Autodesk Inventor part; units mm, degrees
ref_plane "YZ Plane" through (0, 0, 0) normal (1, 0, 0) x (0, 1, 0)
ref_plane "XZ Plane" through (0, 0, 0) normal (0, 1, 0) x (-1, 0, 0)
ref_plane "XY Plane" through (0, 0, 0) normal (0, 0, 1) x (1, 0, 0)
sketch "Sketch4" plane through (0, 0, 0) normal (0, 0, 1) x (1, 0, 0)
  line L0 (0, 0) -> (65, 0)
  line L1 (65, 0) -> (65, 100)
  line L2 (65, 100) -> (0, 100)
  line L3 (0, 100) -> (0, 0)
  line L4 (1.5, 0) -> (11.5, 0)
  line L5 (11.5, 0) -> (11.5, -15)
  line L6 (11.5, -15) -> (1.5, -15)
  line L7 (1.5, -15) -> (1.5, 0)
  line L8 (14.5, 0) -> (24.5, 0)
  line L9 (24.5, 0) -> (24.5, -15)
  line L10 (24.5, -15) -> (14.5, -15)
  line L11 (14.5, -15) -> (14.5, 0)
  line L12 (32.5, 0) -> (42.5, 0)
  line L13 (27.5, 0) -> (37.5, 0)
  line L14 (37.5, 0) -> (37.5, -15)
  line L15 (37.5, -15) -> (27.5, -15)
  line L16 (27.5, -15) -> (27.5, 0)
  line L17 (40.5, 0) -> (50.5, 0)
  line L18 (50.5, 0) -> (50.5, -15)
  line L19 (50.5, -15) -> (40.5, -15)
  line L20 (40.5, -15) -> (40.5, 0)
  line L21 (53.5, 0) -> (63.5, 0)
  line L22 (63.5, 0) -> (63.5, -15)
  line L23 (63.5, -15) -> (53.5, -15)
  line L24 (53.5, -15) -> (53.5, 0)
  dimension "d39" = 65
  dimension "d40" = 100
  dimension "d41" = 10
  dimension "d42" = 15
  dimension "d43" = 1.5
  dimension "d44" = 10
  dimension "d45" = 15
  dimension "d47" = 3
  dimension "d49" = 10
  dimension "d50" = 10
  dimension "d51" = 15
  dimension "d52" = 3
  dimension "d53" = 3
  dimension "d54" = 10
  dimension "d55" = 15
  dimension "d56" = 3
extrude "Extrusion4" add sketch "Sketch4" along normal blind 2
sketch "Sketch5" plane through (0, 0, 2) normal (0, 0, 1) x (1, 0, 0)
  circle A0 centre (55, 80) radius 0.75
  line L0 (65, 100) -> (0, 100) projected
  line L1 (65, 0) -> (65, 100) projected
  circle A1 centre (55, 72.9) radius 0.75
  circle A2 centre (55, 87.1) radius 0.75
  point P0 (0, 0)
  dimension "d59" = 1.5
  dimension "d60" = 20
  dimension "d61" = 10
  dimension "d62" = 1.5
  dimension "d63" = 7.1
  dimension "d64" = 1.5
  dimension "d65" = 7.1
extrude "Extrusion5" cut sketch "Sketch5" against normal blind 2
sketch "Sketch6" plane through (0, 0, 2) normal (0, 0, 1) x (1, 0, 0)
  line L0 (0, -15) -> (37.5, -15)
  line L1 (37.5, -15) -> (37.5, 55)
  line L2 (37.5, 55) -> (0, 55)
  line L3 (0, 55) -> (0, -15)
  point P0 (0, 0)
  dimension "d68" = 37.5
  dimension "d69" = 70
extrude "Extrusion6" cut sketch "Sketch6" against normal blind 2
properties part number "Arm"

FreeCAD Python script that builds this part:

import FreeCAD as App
import Part
import Sketcher
from FreeCAD import Vector
Q = App.Units.Quantity

doc = App.newDocument("Part")
params = doc.addObject("Spreadsheet::Sheet", "Params")
for row, (alias, value) in enumerate([
    ("sketch1_width", "10 mm"),
    ("sketch1_width2", "3 mm"),
    ("sketch1_width3", "65 mm"),
    ("sketch1_height", "100 mm"),
    ("sketch1_height2", "15 mm"),
    ("pad1_length", "2 mm"),
    ("sketch2_diameter", "1.5 mm"),
    ("pocket1_length", "2 mm"),
    ("sketch3_height", "70 mm"),
    ("sketch3_width", "37.5 mm"),
    ("pocket2_length", "2 mm"),
], start=1):
    params.set(f"A{row}", alias)
    params.set(f"B{row}", "=" + value)
    params.setAlias(f"B{row}", alias)

body = doc.addObject("PartDesign::Body", "Body")

# Sketch on XY plane
sketch1 = doc.addObject("Sketcher::SketchObject", "Sketch")
body.addObject(sketch1)
sketch1.AttachmentSupport = (doc.XY_Plane, [""])
sketch1.MapMode = "FlatFace"
sketch1.addGeometry(Part.LineSegment(Vector(0, 100, 0), Vector(0, 0, 0)), False)
sketch1.addGeometry(Part.LineSegment(Vector(0, 0, 0), Vector(1.5, 0, 0)), False)
sketch1.addGeometry(Part.LineSegment(Vector(1.5, 0, 0), Vector(1.5, -15, 0)), False)
sketch1.addGeometry(Part.LineSegment(Vector(1.5, -15, 0), Vector(11.5, -15, 0)), False)
sketch1.addGeometry(Part.LineSegment(Vector(11.5, -15, 0), Vector(11.5, 0, 0)), False)
sketch1.addGeometry(Part.LineSegment(Vector(11.5, 0, 0), Vector(14.5, 0, 0)), False)
sketch1.addGeometry(Part.LineSegment(Vector(14.5, 0, 0), Vector(14.5, -15, 0)), False)
sketch1.addGeometry(Part.LineSegment(Vector(14.5, -15, 0), Vector(24.5, -15, 0)), False)
sketch1.addGeometry(Part.LineSegment(Vector(24.5, -15, 0), Vector(24.5, 0, 0)), False)
sketch1.addGeometry(Part.LineSegment(Vector(24.5, 0, 0), Vector(27.5, 0, 0)), False)
sketch1.addGeometry(Part.LineSegment(Vector(27.5, 0, 0), Vector(27.5, -15, 0)), False)
sketch1.addGeometry(Part.LineSegment(Vector(27.5, -15, 0), Vector(37.5, -15, 0)), False)
sketch1.addGeometry(Part.LineSegment(Vector(37.5, -15, 0), Vector(37.5, 0, 0)), False)
sketch1.addGeometry(Part.LineSegment(Vector(37.5, 0, 0), Vector(40.5, 0, 0)), False)
sketch1.addGeometry(Part.LineSegment(Vector(40.5, 0, 0), Vector(40.5, -15, 0)), False)
sketch1.addGeometry(Part.LineSegment(Vector(40.5, -15, 0), Vector(50.5, -15, 0)), False)
sketch1.addGeometry(Part.LineSegment(Vector(50.5, -15, 0), Vector(50.5, 0, 0)), False)
sketch1.addGeometry(Part.LineSegment(Vector(50.5, 0, 0), Vector(53.5, 0, 0)), False)
sketch1.addGeometry(Part.LineSegment(Vector(53.5, 0, 0), Vector(53.5, -15, 0)), False)
sketch1.addGeometry(Part.LineSegment(Vector(53.5, -15, 0), Vector(63.5, -15, 0)), False)
sketch1.addGeometry(Part.LineSegment(Vector(63.5, -15, 0), Vector(63.5, 0, 0)), False)
sketch1.addGeometry(Part.LineSegment(Vector(63.5, 0, 0), Vector(65, 0, 0)), False)
sketch1.addGeometry(Part.LineSegment(Vector(65, 0, 0), Vector(65, 100, 0)), False)
sketch1.addGeometry(Part.LineSegment(Vector(65, 100, 0), Vector(0, 100, 0)), False)
sketch1.addConstraint(Sketcher.Constraint("Coincident", 0, 2, 1, 1))
sketch1.addConstraint(Sketcher.Constraint("Coincident", 1, 2, 2, 1))
sketch1.addConstraint(Sketcher.Constraint("Coincident", 2, 2, 3, 1))
sketch1.addConstraint(Sketcher.Constraint("Coincident", 3, 2, 4, 1))
sketch1.addConstraint(Sketcher.Constraint("Coincident", 4, 2, 5, 1))
sketch1.addConstraint(Sketcher.Constraint("Coincident", 5, 2, 6, 1))
sketch1.addConstraint(Sketcher.Constraint("Coincident", 6, 2, 7, 1))
sketch1.addConstraint(Sketcher.Constraint("Coincident", 7, 2, 8, 1))
sketch1.addConstraint(Sketcher.Constraint("Coincident", 8, 2, 9, 1))
sketch1.addConstraint(Sketcher.Constraint("Coincident", 9, 2, 10, 1))
sketch1.addConstraint(Sketcher.Constraint("Coincident", 10, 2, 11, 1))
sketch1.addConstraint(Sketcher.Constraint("Coincident", 11, 2, 12, 1))
sketch1.addConstraint(Sketcher.Constraint("Coincident", 12, 2, 13, 1))
sketch1.addConstraint(Sketcher.Constraint("Coincident", 13, 2, 14, 1))
sketch1.addConstraint(Sketcher.Constraint("Coincident", 14, 2, 15, 1))
sketch1.addConstraint(Sketcher.Constraint("Coincident", 15, 2, 16, 1))
sketch1.addConstraint(Sketcher.Constraint("Coincident", 16, 2, 17, 1))
sketch1.addConstraint(Sketcher.Constraint("Coincident", 17, 2, 18, 1))
sketch1.addConstraint(Sketcher.Constraint("Coincident", 18, 2, 19, 1))
sketch1.addConstraint(Sketcher.Constraint("Coincident", 19, 2, 20, 1))
sketch1.addConstraint(Sketcher.Constraint("Coincident", 20, 2, 21, 1))
sketch1.addConstraint(Sketcher.Constraint("Coincident", 21, 2, 22, 1))
sketch1.addConstraint(Sketcher.Constraint("Coincident", 22, 2, 23, 1))
sketch1.addConstraint(Sketcher.Constraint("Coincident", 23, 2, 0, 1))
sketch1.addConstraint(Sketcher.Constraint("Vertical", 0))
sketch1.addConstraint(Sketcher.Constraint("Horizontal", 1))
sketch1.addConstraint(Sketcher.Constraint("Vertical", 2))
sketch1.addConstraint(Sketcher.Constraint("Horizontal", 3))
sketch1.addConstraint(Sketcher.Constraint("Vertical", 4))
sketch1.addConstraint(Sketcher.Constraint("Horizontal", 5))
sketch1.addConstraint(Sketcher.Constraint("Vertical", 6))
sketch1.addConstraint(Sketcher.Constraint("Horizontal", 7))
sketch1.addConstraint(Sketcher.Constraint("Vertical", 8))
sketch1.addConstraint(Sketcher.Constraint("Horizontal", 9))
sketch1.addConstraint(Sketcher.Constraint("Vertical", 10))
sketch1.addConstraint(Sketcher.Constraint("Horizontal", 11))
sketch1.addConstraint(Sketcher.Constraint("Vertical", 12))
sketch1.addConstraint(Sketcher.Constraint("Horizontal", 13))
sketch1.addConstraint(Sketcher.Constraint("Vertical", 14))
sketch1.addConstraint(Sketcher.Constraint("Horizontal", 15))
sketch1.addConstraint(Sketcher.Constraint("Vertical", 16))
sketch1.addConstraint(Sketcher.Constraint("Horizontal", 17))
sketch1.addConstraint(Sketcher.Constraint("Vertical", 18))
sketch1.addConstraint(Sketcher.Constraint("Horizontal", 19))
sketch1.addConstraint(Sketcher.Constraint("Vertical", 20))
sketch1.addConstraint(Sketcher.Constraint("Horizontal", 21))
sketch1.addConstraint(Sketcher.Constraint("Vertical", 22))
sketch1.addConstraint(Sketcher.Constraint("Horizontal", 23))
sketch1.addConstraint(Sketcher.Constraint("Coincident", 0, 2, -1, 1))
sketch1.addConstraint(Sketcher.Constraint("PointOnObject", 4, 2, -1))
sketch1.addConstraint(Sketcher.Constraint("PointOnObject", 8, 2, -1))
sketch1.addConstraint(Sketcher.Constraint("PointOnObject", 12, 2, -1))
sketch1.addConstraint(Sketcher.Constraint("PointOnObject", 16, 2, -1))
sketch1.addConstraint(Sketcher.Constraint("PointOnObject", 20, 2, -1))
sketch1.addConstraint(Sketcher.Constraint("Horizontal", 3, 2, 6, 2))
sketch1.addConstraint(Sketcher.Constraint("Horizontal", 7, 2, 10, 2))
sketch1.addConstraint(Sketcher.Constraint("Horizontal", 11, 2, 14, 2))
sketch1.addConstraint(Sketcher.Constraint("Horizontal", 15, 2, 18, 2))
sketch1.addConstraint(Sketcher.Constraint("Equal", 3, 7))
sketch1.addConstraint(Sketcher.Constraint("Equal", 5, 9))
sketch1.addConstraint(Sketcher.Constraint("Equal", 7, 11))
sketch1.addConstraint(Sketcher.Constraint("Equal", 9, 13))
sketch1.addConstraint(Sketcher.Constraint("Equal", 11, 15))
sketch1.addConstraint(Sketcher.Constraint("Equal", 13, 17))
sketch1.addConstraint(Sketcher.Constraint("Equal", 15, 19))
sketch1.addConstraint(Sketcher.Constraint("Equal", 1, 21))
sketch1.addConstraint(Sketcher.Constraint("DistanceX", 3, 1, 3, 2, Q("10 mm")))
sketch1.addConstraint(Sketcher.Constraint("DistanceX", 5, 1, 5, 2, Q("3 mm")))
sketch1.addConstraint(Sketcher.Constraint("DistanceX", 23, 2, 23, 1, Q("65 mm")))
sketch1.addConstraint(Sketcher.Constraint("DistanceY", 0, 2, 0, 1, Q("100 mm")))
sketch1.addConstraint(Sketcher.Constraint("DistanceY", 2, 2, 2, 1, Q("15 mm")))
sketch1.setExpression("Constraints[66]", "Params.sketch1_width")
sketch1.setExpression("Constraints[67]", "Params.sketch1_width2")
sketch1.setExpression("Constraints[68]", "Params.sketch1_width3")
sketch1.setExpression("Constraints[69]", "Params.sketch1_height")
sketch1.setExpression("Constraints[70]", "Params.sketch1_height2")
pad1 = doc.addObject("PartDesign::Pad", "Pad")
body.addObject(pad1)
pad1.Profile = sketch1
pad1.setExpression("Length", "Params.pad1_length")

# Sketch on XY plane
sketch2 = doc.addObject("Sketcher::SketchObject", "Sketch001")
body.addObject(sketch2)
sketch2.AttachmentSupport = (doc.XY_Plane, [""])
sketch2.MapMode = "FlatFace"
sketch2.AttachmentOffset = App.Placement(Vector(0, 0, 2), App.Rotation())
sketch2.addGeometry(Part.Circle(Vector(55, 80, 0), Vector(0, 0, 1), 0.8), False)
sketch2.addGeometry(Part.Circle(Vector(55, 72.9, 0), Vector(0, 0, 1), 0.8), False)
sketch2.addGeometry(Part.Circle(Vector(55, 87.1, 0), Vector(0, 0, 1), 0.8), False)
sketch2.addConstraint(Sketcher.Constraint("Equal", 0, 1))
sketch2.addConstraint(Sketcher.Constraint("Equal", 1, 2))
sketch2.addConstraint(Sketcher.Constraint("Vertical", 0, 3, 1, 3))
sketch2.addConstraint(Sketcher.Constraint("Vertical", 1, 3, 2, 3))
sketch2.addConstraint(Sketcher.Constraint("Diameter", 0, Q("1.5 mm")))
sketch2.addConstraint(Sketcher.Constraint("DistanceY", 1, 3, 0, 3, Q("7.1 mm")))
sketch2.addConstraint(Sketcher.Constraint("DistanceY", 0, 3, 2, 3, Q("7.1 mm")))
sketch2.addConstraint(Sketcher.Constraint("DistanceX", -1, 1, 0, 3, Q("55 mm")))
sketch2.addConstraint(Sketcher.Constraint("DistanceY", -1, 1, 0, 3, Q("80 mm")))
sketch2.setExpression("Constraints[4]", "Params.sketch2_diameter")
pocket1 = doc.addObject("PartDesign::Pocket", "Pocket")
body.addObject(pocket1)
pocket1.Profile = sketch2
pocket1.setExpression("Length", "Params.pocket1_length")

# Sketch on XY plane
sketch3 = doc.addObject("Sketcher::SketchObject", "Sketch002")
body.addObject(sketch3)
sketch3.AttachmentSupport = (doc.XY_Plane, [""])
sketch3.MapMode = "FlatFace"
sketch3.AttachmentOffset = App.Placement(Vector(0, 0, 2), App.Rotation())
sketch3.addGeometry(Part.LineSegment(Vector(0, 55, 0), Vector(0, -15, 0)), False)
sketch3.addGeometry(Part.LineSegment(Vector(0, -15, 0), Vector(38, -15, 0)), False)
sketch3.addGeometry(Part.LineSegment(Vector(38, -15, 0), Vector(38, 55, 0)), False)
sketch3.addGeometry(Part.LineSegment(Vector(38, 55, 0), Vector(0, 55, 0)), False)
sketch3.addConstraint(Sketcher.Constraint("Coincident", 0, 2, 1, 1))
sketch3.addConstraint(Sketcher.Constraint("Coincident", 1, 2, 2, 1))
sketch3.addConstraint(Sketcher.Constraint("Coincident", 2, 2, 3, 1))
sketch3.addConstraint(Sketcher.Constraint("Coincident", 3, 2, 0, 1))
sketch3.addConstraint(Sketcher.Constraint("Vertical", 0))
sketch3.addConstraint(Sketcher.Constraint("Horizontal", 1))
sketch3.addConstraint(Sketcher.Constraint("Vertical", 2))
sketch3.addConstraint(Sketcher.Constraint("Horizontal", 3))
sketch3.addConstraint(Sketcher.Constraint("PointOnObject", 0, 2, -2))
sketch3.addConstraint(Sketcher.Constraint("DistanceY", 0, 2, 0, 1, Q("70 mm")))
sketch3.addConstraint(Sketcher.Constraint("DistanceX", 1, 1, 1, 2, Q("37.5 mm")))
sketch3.addConstraint(Sketcher.Constraint("DistanceY", 0, 2, -1, 1, Q("15 mm")))
sketch3.setExpression("Constraints[9]", "Params.sketch3_height")
sketch3.setExpression("Constraints[10]", "Params.sketch3_width")
pocket2 = doc.addObject("PartDesign::Pocket", "Pocket001")
body.addObject(pocket2)
pocket2.Profile = sketch3
pocket2.setExpression("Length", "Params.pocket2_length")

doc.recompute()
